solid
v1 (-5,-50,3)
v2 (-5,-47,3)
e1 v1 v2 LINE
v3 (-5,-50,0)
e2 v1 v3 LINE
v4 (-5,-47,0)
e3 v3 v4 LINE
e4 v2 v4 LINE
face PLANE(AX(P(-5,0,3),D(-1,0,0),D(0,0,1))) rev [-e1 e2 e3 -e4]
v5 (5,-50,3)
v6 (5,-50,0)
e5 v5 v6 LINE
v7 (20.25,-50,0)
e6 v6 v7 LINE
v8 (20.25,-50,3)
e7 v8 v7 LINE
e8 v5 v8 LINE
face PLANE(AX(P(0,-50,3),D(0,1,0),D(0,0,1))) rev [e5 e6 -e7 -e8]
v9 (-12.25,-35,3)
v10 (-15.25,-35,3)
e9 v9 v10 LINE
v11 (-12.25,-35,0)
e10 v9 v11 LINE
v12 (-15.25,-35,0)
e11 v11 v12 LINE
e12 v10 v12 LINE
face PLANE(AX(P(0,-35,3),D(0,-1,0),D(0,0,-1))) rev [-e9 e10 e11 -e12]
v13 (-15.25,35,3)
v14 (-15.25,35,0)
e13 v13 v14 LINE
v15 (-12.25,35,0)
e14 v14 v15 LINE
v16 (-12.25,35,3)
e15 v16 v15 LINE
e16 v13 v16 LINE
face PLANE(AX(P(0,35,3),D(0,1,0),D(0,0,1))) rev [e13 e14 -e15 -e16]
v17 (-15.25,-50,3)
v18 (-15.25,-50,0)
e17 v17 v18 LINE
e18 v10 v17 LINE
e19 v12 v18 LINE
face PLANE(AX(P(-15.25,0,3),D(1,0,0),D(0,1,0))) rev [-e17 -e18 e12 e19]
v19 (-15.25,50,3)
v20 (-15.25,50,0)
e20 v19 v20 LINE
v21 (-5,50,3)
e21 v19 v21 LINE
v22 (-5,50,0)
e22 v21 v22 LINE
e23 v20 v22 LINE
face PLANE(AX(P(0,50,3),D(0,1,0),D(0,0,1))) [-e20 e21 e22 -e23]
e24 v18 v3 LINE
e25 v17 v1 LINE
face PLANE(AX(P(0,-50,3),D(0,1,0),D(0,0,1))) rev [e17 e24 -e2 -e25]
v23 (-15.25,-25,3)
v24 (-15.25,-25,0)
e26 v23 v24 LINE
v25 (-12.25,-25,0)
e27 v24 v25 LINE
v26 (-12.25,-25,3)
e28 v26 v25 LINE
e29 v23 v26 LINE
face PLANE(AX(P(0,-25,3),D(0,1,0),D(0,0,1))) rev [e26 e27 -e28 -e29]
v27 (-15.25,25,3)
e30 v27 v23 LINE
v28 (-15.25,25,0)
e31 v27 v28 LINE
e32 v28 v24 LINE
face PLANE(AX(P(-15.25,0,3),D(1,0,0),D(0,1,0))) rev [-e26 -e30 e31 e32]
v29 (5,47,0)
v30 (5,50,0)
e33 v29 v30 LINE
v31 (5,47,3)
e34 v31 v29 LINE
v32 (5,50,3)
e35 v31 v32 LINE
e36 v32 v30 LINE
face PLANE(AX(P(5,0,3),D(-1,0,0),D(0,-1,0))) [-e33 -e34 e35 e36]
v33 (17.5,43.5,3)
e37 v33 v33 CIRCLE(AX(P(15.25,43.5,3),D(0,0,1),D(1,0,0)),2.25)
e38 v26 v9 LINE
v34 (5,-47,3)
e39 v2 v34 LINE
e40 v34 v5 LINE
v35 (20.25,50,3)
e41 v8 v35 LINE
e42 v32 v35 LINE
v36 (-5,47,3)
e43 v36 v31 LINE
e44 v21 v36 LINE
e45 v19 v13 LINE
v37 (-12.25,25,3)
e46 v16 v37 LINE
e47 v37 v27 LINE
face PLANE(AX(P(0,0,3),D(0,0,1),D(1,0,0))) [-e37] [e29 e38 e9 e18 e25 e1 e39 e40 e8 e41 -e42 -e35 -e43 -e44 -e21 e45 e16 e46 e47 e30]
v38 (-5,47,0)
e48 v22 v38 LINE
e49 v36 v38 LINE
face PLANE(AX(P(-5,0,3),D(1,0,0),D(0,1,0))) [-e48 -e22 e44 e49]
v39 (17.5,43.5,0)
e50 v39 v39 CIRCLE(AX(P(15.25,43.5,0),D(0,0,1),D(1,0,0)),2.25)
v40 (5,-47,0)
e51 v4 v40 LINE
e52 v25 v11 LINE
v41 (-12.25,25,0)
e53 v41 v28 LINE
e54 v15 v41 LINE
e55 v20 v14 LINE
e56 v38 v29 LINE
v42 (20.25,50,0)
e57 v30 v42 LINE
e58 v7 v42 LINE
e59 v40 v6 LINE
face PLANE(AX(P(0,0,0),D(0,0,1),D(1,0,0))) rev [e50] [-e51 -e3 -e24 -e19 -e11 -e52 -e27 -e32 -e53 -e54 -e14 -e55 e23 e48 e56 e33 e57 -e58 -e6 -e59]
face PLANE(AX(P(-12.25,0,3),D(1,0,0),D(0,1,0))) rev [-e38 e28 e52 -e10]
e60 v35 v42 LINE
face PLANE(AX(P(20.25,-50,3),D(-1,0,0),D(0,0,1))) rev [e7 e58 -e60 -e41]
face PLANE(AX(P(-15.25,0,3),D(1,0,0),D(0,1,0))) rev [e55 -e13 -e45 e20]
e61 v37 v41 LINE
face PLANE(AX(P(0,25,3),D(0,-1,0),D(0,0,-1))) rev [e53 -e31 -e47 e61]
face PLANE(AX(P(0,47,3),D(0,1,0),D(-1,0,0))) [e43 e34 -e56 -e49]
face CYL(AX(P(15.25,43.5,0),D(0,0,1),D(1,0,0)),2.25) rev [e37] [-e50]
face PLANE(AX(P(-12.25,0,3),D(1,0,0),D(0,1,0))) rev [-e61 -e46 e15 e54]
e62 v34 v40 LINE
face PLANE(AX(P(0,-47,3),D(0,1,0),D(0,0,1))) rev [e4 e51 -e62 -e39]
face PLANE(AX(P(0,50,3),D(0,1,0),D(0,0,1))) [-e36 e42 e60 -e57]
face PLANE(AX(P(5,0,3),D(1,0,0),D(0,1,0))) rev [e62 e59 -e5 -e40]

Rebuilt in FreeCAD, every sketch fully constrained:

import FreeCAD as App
import Part
import Sketcher
from FreeCAD import Vector

doc = App.newDocument("Part")
params = doc.addObject("Spreadsheet::Sheet", "Params")
for row, (alias, value) in enumerate([
    ("sketch1_width", "3 mm"),
    ("sketch1_width2", "10 mm"),
    ("sketch1_height", "15 mm"),
    ("sketch1_height2", "50 mm"),
    ("sketch1_width3", "10.25 mm"),
    ("pad1_length", "3 mm"),
    ("sketch2_width", "5 mm"),
    ("sketch2_height", "100 mm"),
    ("pad2_length", "3 mm"),
    ("sketch3_diameter", "4.5 mm"),
    ("pocket1_length", "3 mm"),
], start=1):
    params.set(f"A{row}", alias)
    params.set(f"B{row}", "=" + value)
    params.setAlias(f"B{row}", alias)

body = doc.addObject("PartDesign::Body", "Body")

sketch1 = body.newObject("Sketcher::SketchObject", "Sketch")
sketch1.AttachmentSupport = (doc.getObject("XY_Plane"), [""])
sketch1.MapMode = "FlatFace"
sketch1.addGeometry([
    Part.LineSegment(Vector(-15.25, 50, 0), Vector(-15.25, 35, 0)),
    Part.LineSegment(Vector(-15.25, 35, 0), Vector(-12.25, 35, 0)),
    Part.LineSegment(Vector(-12.25, 35, 0), Vector(-12.25, 25, 0)),
    Part.LineSegment(Vector(-12.25, 25, 0), Vector(-15.25, 25, 0)),
    Part.LineSegment(Vector(-15.25, 25, 0), Vector(-15.25, -25, 0)),
    Part.LineSegment(Vector(-15.25, -25, 0), Vector(-12.25, -25, 0)),
    Part.LineSegment(Vector(-12.25, -25, 0), Vector(-12.25, -35, 0)),
    Part.LineSegment(Vector(-12.25, -35, 0), Vector(-15.25, -35, 0)),
    Part.LineSegment(Vector(-15.25, -35, 0), Vector(-15.25, -50, 0)),
    Part.LineSegment(Vector(-15.25, -50, 0), Vector(-5, -50, 0)),
    Part.LineSegment(Vector(-5, -50, 0), Vector(-5, -47, 0)),
    Part.LineSegment(Vector(-5, -47, 0), Vector(5, -47, 0)),
    Part.LineSegment(Vector(5, -47, 0), Vector(5, -50, 0)),
    Part.LineSegment(Vector(5, -50, 0), Vector(15.25, -50, 0)),
    Part.LineSegment(Vector(15.25, -50, 0), Vector(15.25, 50, 0)),
    Part.LineSegment(Vector(15.25, 50, 0), Vector(5, 50, 0)),
    Part.LineSegment(Vector(5, 50, 0), Vector(5, 47, 0)),
    Part.LineSegment(Vector(5, 47, 0), Vector(-5, 47, 0)),
    Part.LineSegment(Vector(-5, 47, 0), Vector(-5, 50, 0)),
    Part.LineSegment(Vector(-5, 50, 0), Vector(-15.25, 50, 0)),
], False)
sketch1.addConstraint([
    Sketcher.Constraint("Coincident", 0, 2, 1, 1),
    Sketcher.Constraint("Coincident", 1, 2, 2, 1),
    Sketcher.Constraint("Coincident", 2, 2, 3, 1),
    Sketcher.Constraint("Coincident", 3, 2, 4, 1),
    Sketcher.Constraint("Coincident", 4, 2, 5, 1),
    Sketcher.Constraint("Coincident", 5, 2, 6, 1),
    Sketcher.Constraint("Coincident", 6, 2, 7, 1),
    Sketcher.Constraint("Coincident", 7, 2, 8, 1),
    Sketcher.Constraint("Coincident", 8, 2, 9, 1),
    Sketcher.Constraint("Coincident", 9, 2, 10, 1),
    Sketcher.Constraint("Coincident", 10, 2, 11, 1),
    Sketcher.Constraint("Coincident", 11, 2, 12, 1),
    Sketcher.Constraint("Coincident", 12, 2, 13, 1),
    Sketcher.Constraint("Coincident", 13, 2, 14, 1),
    Sketcher.Constraint("Coincident", 14, 2, 15, 1),
    Sketcher.Constraint("Coincident", 15, 2, 16, 1),
    Sketcher.Constraint("Coincident", 16, 2, 17, 1),
    Sketcher.Constraint("Coincident", 17, 2, 18, 1),
    Sketcher.Constraint("Coincident", 18, 2, 19, 1),
    Sketcher.Constraint("Coincident", 19, 2, 0, 1),
    Sketcher.Constraint("Vertical", 0),
    Sketcher.Constraint("Horizontal", 1),
    Sketcher.Constraint("Vertical", 2),
    Sketcher.Constraint("Horizontal", 3),
    Sketcher.Constraint("Vertical", 4),
    Sketcher.Constraint("Horizontal", 5),
    Sketcher.Constraint("Vertical", 6),
    Sketcher.Constraint("Horizontal", 7),
    Sketcher.Constraint("Vertical", 8),
    Sketcher.Constraint("Horizontal", 9),
    Sketcher.Constraint("Vertical", 10),
    Sketcher.Constraint("Horizontal", 11),
    Sketcher.Constraint("Vertical", 12),
    Sketcher.Constraint("Horizontal", 13),
    Sketcher.Constraint("Vertical", 14),
    Sketcher.Constraint("Horizontal", 15),
    Sketcher.Constraint("Vertical", 16),
    Sketcher.Constraint("Horizontal", 17),
    Sketcher.Constraint("Vertical", 18),
    Sketcher.Constraint("Horizontal", 19),
    Sketcher.Constraint("Symmetric", 8, 2, 14, 2, -1, 1),
    Sketcher.Constraint("Symmetric", 10, 2, 16, 2, -1, 1),
    Sketcher.Constraint("Symmetric", 12, 2, 18, 2, -1, 1),
    Sketcher.Constraint("Symmetric", 9, 2, 12, 2, -2),
    Sketcher.Constraint("Symmetric", 2, 2, 5, 2, -1),
    Sketcher.Constraint("Symmetric", 0, 2, 7, 2, -1),
    Sketcher.Constraint("Vertical", 0, 2, 3, 2),
    Sketcher.Constraint("Equal", 17, 2),
    Sketcher.Constraint("Equal", 7, 10),
    Sketcher.Constraint("DistanceX", 1, 1, 1, 2, 3.0),
    Sketcher.Constraint("DistanceX", 11, 1, 11, 2, 10.0),
    Sketcher.Constraint("DistanceY", 0, 2, 0, 1, 15.0),
    Sketcher.Constraint("DistanceY", 4, 2, 4, 1, 50.0),
    Sketcher.Constraint("DistanceX", 9, 1, 9, 2, 10.25),
])
sketch1.setExpression("Constraints[49]", "Params.sketch1_width")
sketch1.setExpression("Constraints[50]", "Params.sketch1_width2")
sketch1.setExpression("Constraints[51]", "Params.sketch1_height")
sketch1.setExpression("Constraints[52]", "Params.sketch1_height2")
sketch1.setExpression("Constraints[53]", "Params.sketch1_width3")
pad1 = body.newObject("PartDesign::Pad", "Pad")
pad1.Profile = sketch1
pad1.setExpression("Length", "Params.pad1_length")

sketch2 = body.newObject("Sketcher::SketchObject", "Sketch001")
sketch2.AttachmentSupport = (doc.getObject("XY_Plane"), [""])
sketch2.MapMode = "FlatFace"
sketch2.addGeometry([
    Part.LineSegment(Vector(15.25, 50, 0), Vector(15.25, -50, 0)),
    Part.LineSegment(Vector(15.25, -50, 0), Vector(20.25, -50, 0)),
    Part.LineSegment(Vector(20.25, -50, 0), Vector(20.25, 50, 0)),
    Part.LineSegment(Vector(20.25, 50, 0), Vector(15.25, 50, 0)),
], False)
sketch2.addConstraint([
    Sketcher.Constraint("Coincident", 0, 2, 1, 1),
    Sketcher.Constraint("Coincident", 1, 2, 2, 1),
    Sketcher.Constraint("Coincident", 2, 2, 3, 1),
    Sketcher.Constraint("Coincident", 3, 2, 0, 1),
    Sketcher.Constraint("Vertical", 0),
    Sketcher.Constraint("Horizontal", 1),
    Sketcher.Constraint("Vertical", 2),
    Sketcher.Constraint("Horizontal", 3),
    Sketcher.Constraint("DistanceX", 1, 1, 1, 2, 5.0),
    Sketcher.Constraint("DistanceY", 0, 2, 0, 1, 100.0),
    Sketcher.Constraint("DistanceY", 0, 2, -1, 1, 50.0),
    Sketcher.Constraint("DistanceX", -1, 1, 0, 2, 15.25),
])
sketch2.setExpression("Constraints[8]", "Params.sketch2_width")
sketch2.setExpression("Constraints[9]", "Params.sketch2_height")
pad2 = body.newObject("PartDesign::Pad", "Pad001")
pad2.Profile = sketch2
pad2.setExpression("Length", "Params.pad2_length")

sketch3 = body.newObject("Sketcher::SketchObject", "Sketch002")
sketch3.AttachmentSupport = (doc.getObject("XY_Plane"), [""])
sketch3.MapMode = "FlatFace"
sketch3.AttachmentOffset = App.Placement(Vector(0, 0, 3), App.Rotation())
sketch3.addGeometry(Part.Circle(Vector(15.25, 43.5, 0), Vector(0, 0, 1), 2.25), False)
sketch3.addConstraint([
    Sketcher.Constraint("Diameter", 0, 4.5),
    Sketcher.Constraint("DistanceY", -1, 1, 0, 3, 43.5),
    Sketcher.Constraint("DistanceX", -1, 1, 0, 3, 15.25),
])
sketch3.setExpression("Constraints[0]", "Params.sketch3_diameter")
pocket1 = body.newObject("PartDesign::Pocket", "Pocket")
pocket1.Profile = sketch3
pocket1.setExpression("Length", "Params.pocket1_length")

doc.recompute()
